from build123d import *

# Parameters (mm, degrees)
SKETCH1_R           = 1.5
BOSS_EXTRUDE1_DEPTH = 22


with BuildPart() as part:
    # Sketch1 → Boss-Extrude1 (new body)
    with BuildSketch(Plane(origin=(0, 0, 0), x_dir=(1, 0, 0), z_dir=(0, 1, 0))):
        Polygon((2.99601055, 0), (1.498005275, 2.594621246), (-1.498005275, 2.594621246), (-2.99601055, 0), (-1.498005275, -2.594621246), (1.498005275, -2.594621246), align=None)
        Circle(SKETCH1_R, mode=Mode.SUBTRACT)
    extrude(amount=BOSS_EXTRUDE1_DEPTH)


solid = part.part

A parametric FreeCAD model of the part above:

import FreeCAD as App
import Part
import Sketcher
from FreeCAD import Vector
Q = App.Units.Quantity

doc = App.newDocument("Part")
body = doc.addObject("PartDesign::Body", "Body")

# Sketch on XZ plane
sketch1 = doc.addObject("Sketcher::SketchObject", "Sketch")
body.addObject(sketch1)
sketch1.AttachmentSupport = (doc.XZ_Plane, [""])
sketch1.MapMode = "FlatFace"
sketch1.addGeometry(Part.LineSegment(Vector(3, 0, 0), Vector(1.5, -2.6, 0)), False)
sketch1.addGeometry(Part.LineSegment(Vector(1.5, -2.6, 0), Vector(-1.5, -2.6, 0)), False)
sketch1.addGeometry(Part.LineSegment(Vector(-1.5, -2.6, 0), Vector(-3, 0, 0)), False)
sketch1.addGeometry(Part.LineSegment(Vector(-3, 0, 0), Vector(-1.5, 2.6, 0)), False)
sketch1.addGeometry(Part.LineSegment(Vector(-1.5, 2.6, 0), Vector(1.5, 2.6, 0)), False)
sketch1.addGeometry(Part.LineSegment(Vector(1.5, 2.6, 0), Vector(3, 0, 0)), False)
sketch1.addGeometry(Part.Circle(Vector(0, 0, 0), Vector(0, 0, 1), 1.5), False)
sketch1.addConstraint(Sketcher.Constraint("Coincident", 0, 2, 1, 1))
sketch1.addConstraint(Sketcher.Constraint("Coincident", 1, 2, 2, 1))
sketch1.addConstraint(Sketcher.Constraint("Coincident", 2, 2, 3, 1))
sketch1.addConstraint(Sketcher.Constraint("Coincident", 3, 2, 4, 1))
sketch1.addConstraint(Sketcher.Constraint("Coincident", 4, 2, 5, 1))
sketch1.addConstraint(Sketcher.Constraint("Coincident", 5, 2, 0, 1))
sketch1.addConstraint(Sketcher.Constraint("Horizontal", 1))
sketch1.addConstraint(Sketcher.Constraint("Horizontal", 4))
sketch1.addConstraint(Sketcher.Constraint("Coincident", 6, 3, -1, 1))
sketch1.addConstraint(Sketcher.Constraint("Symmetric", 0, 2, 3, 2, -1, 1))
sketch1.addConstraint(Sketcher.Constraint("Symmetric", 2, 2, 5, 2, -1, 1))
sketch1.addConstraint(Sketcher.Constraint("PointOnObject", 2, 2, -1))
sketch1.addConstraint(Sketcher.Constraint("Parallel", 2, 5))
sketch1.addConstraint(Sketcher.Constraint("Vertical", 1, 2, 3, 2))
sketch1.addConstraint(Sketcher.Constraint("Diameter", 6, 3.0))
sketch1.addConstraint(Sketcher.Constraint("Angle", 0, Q("-120 deg")))
sketch1.addConstraint(Sketcher.Constraint("DistanceX", 1, 2, 1, 1, 2.996011))
sketch1.addConstraint(Sketcher.Constraint("Distance", 0, 2.996011))
pad1 = doc.addObject("PartDesign::Pad", "Pad")
body.addObject(pad1)
pad1.Profile = sketch1
pad1.Length = 22
pad1.Reversed = True

doc.recompute()
